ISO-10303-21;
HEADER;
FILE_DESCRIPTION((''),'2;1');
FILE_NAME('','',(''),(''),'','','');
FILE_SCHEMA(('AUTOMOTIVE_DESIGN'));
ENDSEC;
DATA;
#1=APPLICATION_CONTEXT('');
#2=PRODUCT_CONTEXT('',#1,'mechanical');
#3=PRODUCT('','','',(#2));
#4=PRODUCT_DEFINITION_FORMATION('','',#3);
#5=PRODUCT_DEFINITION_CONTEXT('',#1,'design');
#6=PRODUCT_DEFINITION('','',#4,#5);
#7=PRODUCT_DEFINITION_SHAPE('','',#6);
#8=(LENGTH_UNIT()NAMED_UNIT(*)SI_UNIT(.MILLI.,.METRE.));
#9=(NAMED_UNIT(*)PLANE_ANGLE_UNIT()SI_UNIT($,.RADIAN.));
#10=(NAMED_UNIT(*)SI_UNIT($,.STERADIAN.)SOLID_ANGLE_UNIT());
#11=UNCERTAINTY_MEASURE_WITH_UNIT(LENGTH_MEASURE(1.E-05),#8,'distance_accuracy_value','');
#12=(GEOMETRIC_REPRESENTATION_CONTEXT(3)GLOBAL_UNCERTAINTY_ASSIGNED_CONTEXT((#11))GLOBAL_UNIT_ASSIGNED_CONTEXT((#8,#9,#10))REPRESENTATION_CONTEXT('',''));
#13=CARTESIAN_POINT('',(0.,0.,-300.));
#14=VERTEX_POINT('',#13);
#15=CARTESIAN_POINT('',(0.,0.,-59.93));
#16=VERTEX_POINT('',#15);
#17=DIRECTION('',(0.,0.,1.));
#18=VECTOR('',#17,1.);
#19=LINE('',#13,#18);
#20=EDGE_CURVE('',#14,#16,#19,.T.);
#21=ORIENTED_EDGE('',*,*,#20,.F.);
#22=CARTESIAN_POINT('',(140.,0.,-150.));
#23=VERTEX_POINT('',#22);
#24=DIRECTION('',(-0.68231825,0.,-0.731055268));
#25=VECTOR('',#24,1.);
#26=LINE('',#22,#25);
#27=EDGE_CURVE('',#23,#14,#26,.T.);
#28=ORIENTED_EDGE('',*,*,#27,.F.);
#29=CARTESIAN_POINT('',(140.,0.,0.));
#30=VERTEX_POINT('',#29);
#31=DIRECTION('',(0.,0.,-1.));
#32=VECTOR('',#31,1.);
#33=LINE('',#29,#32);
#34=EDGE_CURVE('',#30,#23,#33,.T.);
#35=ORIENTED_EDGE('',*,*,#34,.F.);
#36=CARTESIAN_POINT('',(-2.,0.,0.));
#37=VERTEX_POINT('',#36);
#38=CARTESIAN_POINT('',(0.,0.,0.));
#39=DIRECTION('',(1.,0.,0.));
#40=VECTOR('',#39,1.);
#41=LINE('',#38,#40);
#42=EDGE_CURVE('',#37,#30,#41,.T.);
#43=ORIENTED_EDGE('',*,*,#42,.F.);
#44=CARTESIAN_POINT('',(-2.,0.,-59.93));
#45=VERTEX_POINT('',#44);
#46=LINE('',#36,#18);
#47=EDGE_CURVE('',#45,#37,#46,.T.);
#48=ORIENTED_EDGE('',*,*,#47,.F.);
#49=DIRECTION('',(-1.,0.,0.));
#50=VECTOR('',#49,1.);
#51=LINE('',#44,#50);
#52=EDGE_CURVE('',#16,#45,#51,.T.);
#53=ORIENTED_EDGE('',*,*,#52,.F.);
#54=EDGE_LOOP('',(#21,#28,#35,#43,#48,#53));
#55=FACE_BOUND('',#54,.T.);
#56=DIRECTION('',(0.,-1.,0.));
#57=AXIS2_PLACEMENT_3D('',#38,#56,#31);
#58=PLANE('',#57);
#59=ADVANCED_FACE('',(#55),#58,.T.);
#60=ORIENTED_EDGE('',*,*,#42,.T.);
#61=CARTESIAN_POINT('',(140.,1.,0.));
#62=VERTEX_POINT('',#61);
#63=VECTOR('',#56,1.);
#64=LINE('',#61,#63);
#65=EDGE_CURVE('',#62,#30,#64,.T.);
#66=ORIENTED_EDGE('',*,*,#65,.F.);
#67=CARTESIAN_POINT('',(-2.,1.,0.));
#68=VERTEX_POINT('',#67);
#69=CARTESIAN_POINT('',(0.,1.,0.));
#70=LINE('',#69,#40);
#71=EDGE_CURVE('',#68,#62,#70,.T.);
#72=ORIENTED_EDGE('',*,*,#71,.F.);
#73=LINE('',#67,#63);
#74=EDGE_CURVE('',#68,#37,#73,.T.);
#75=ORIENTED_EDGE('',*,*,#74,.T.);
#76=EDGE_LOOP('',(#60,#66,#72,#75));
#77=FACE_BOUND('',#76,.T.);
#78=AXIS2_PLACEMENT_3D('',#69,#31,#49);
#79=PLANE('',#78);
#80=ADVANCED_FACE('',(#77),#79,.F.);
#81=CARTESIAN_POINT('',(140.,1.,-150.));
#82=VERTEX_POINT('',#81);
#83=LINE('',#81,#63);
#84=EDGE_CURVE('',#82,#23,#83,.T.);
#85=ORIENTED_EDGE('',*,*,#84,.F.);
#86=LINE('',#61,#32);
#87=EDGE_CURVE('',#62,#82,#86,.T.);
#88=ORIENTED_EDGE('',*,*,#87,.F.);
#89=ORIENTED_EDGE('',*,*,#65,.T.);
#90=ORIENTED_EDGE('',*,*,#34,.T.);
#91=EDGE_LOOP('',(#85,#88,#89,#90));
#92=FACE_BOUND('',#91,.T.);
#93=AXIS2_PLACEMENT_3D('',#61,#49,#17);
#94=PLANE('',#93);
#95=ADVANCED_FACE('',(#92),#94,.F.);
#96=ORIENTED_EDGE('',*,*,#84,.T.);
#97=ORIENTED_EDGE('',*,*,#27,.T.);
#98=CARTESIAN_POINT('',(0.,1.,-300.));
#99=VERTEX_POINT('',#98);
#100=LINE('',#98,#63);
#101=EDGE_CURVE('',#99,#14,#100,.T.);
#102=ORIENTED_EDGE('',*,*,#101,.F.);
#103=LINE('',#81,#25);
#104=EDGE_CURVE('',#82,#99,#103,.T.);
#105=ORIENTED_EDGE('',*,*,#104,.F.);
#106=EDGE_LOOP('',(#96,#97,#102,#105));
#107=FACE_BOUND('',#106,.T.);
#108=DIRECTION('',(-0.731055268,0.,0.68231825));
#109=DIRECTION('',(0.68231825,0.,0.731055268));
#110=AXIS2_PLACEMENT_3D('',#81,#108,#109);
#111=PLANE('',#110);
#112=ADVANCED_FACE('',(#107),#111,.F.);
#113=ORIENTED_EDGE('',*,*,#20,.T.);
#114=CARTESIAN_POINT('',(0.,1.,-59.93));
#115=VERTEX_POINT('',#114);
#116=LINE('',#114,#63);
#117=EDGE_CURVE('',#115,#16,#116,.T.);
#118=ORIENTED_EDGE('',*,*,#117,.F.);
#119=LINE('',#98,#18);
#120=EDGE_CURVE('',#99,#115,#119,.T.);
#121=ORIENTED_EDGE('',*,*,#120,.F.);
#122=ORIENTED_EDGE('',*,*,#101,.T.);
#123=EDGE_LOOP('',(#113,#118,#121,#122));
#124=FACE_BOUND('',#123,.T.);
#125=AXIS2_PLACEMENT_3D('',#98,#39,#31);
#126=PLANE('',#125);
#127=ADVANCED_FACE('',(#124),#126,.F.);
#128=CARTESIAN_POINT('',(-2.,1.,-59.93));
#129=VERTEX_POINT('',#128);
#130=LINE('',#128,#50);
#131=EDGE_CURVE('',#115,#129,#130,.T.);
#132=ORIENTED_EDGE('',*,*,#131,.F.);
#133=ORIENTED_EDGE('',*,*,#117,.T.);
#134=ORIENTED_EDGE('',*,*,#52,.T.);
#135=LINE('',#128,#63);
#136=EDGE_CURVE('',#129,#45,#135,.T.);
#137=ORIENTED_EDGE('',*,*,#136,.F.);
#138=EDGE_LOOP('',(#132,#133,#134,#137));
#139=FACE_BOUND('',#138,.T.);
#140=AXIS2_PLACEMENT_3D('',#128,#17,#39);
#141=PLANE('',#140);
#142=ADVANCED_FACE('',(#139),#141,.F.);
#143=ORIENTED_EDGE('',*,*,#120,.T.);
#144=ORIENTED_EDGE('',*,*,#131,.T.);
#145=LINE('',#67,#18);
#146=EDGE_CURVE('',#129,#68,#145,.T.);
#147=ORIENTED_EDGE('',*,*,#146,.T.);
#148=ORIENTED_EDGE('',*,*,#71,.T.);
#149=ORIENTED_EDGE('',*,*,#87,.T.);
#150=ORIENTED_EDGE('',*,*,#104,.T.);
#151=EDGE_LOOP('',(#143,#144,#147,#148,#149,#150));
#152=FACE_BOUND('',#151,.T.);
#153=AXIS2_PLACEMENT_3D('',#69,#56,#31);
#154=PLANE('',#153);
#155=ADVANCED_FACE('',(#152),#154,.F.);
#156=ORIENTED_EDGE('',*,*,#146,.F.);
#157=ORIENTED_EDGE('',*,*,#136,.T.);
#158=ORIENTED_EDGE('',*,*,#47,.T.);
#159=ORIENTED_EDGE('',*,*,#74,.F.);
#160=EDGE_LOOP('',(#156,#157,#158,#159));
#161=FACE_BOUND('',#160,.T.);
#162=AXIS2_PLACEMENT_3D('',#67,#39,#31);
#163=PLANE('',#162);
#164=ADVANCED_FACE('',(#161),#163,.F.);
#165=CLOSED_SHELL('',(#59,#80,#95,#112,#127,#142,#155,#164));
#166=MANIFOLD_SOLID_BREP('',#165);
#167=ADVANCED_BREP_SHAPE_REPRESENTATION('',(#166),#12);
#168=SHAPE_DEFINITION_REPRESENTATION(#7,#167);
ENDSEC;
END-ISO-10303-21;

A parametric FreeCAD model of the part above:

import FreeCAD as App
import Part
import Sketcher

V = App.Vector
Q = App.Units.Quantity

doc = App.newDocument("Part")
body = doc.addObject("PartDesign::Body", "Body")

sketch1 = body.newObject("Sketcher::SketchObject", "Sketch")
sketch1.AttachmentSupport = (doc.getObject("XZ_Plane"), [""])
sketch1.MapMode = "FlatFace"
sketch1.addGeometry(Part.LineSegment(V(0, -300, 0), V(0, -59.9, 0)), False)
sketch1.addGeometry(Part.LineSegment(V(0, -59.9, 0), V(-2, -59.9, 0)), False)
sketch1.addGeometry(Part.LineSegment(V(-2, -59.9, 0), V(-2, 0, 0)), False)
sketch1.addGeometry(Part.LineSegment(V(-2, 0, 0), V(140, 0, 0)), False)
sketch1.addGeometry(Part.LineSegment(V(140, 0, 0), V(140, -150, 0)), False)
sketch1.addGeometry(Part.LineSegment(V(140, -150, 0), V(0, -300, 0)), False)
sketch1.addConstraint(Sketcher.Constraint("Coincident", 0, 2, 1, 1))
sketch1.addConstraint(Sketcher.Constraint("Coincident", 1, 2, 2, 1))
sketch1.addConstraint(Sketcher.Constraint("Coincident", 2, 2, 3, 1))
sketch1.addConstraint(Sketcher.Constraint("Coincident", 3, 2, 4, 1))
sketch1.addConstraint(Sketcher.Constraint("Coincident", 4, 2, 5, 1))
sketch1.addConstraint(Sketcher.Constraint("Coincident", 5, 2, 0, 1))
sketch1.addConstraint(Sketcher.Constraint("Vertical", 0))
sketch1.addConstraint(Sketcher.Constraint("Horizontal", 1))
sketch1.addConstraint(Sketcher.Constraint("Vertical", 2))
sketch1.addConstraint(Sketcher.Constraint("Horizontal", 3))
sketch1.addConstraint(Sketcher.Constraint("Vertical", 4))
sketch1.addConstraint(Sketcher.Constraint("PointOnObject", 0, 2, -2))
sketch1.addConstraint(Sketcher.Constraint("PointOnObject", 2, 2, -1))
sketch1.addConstraint(Sketcher.Constraint("DistanceX", 1, 2, 1, 1, Q("2 mm")))
sketch1.addConstraint(Sketcher.Constraint("DistanceX", 3, 1, 3, 2, Q("142 mm")))
sketch1.addConstraint(Sketcher.Constraint("DistanceY", 4, 2, 4, 1, Q("150 mm")))
sketch1.addConstraint(Sketcher.Constraint("DistanceY", 5, 2, -1, 1, Q("300 mm")))
sketch1.addConstraint(Sketcher.Constraint("DistanceY", 0, 1, 0, 2, Q("240.07 mm")))
pad1 = body.newObject("PartDesign::Pad", "Pad")
pad1.Profile = sketch1
pad1.Length = 1
pad1.Reversed = True

doc.recompute()
